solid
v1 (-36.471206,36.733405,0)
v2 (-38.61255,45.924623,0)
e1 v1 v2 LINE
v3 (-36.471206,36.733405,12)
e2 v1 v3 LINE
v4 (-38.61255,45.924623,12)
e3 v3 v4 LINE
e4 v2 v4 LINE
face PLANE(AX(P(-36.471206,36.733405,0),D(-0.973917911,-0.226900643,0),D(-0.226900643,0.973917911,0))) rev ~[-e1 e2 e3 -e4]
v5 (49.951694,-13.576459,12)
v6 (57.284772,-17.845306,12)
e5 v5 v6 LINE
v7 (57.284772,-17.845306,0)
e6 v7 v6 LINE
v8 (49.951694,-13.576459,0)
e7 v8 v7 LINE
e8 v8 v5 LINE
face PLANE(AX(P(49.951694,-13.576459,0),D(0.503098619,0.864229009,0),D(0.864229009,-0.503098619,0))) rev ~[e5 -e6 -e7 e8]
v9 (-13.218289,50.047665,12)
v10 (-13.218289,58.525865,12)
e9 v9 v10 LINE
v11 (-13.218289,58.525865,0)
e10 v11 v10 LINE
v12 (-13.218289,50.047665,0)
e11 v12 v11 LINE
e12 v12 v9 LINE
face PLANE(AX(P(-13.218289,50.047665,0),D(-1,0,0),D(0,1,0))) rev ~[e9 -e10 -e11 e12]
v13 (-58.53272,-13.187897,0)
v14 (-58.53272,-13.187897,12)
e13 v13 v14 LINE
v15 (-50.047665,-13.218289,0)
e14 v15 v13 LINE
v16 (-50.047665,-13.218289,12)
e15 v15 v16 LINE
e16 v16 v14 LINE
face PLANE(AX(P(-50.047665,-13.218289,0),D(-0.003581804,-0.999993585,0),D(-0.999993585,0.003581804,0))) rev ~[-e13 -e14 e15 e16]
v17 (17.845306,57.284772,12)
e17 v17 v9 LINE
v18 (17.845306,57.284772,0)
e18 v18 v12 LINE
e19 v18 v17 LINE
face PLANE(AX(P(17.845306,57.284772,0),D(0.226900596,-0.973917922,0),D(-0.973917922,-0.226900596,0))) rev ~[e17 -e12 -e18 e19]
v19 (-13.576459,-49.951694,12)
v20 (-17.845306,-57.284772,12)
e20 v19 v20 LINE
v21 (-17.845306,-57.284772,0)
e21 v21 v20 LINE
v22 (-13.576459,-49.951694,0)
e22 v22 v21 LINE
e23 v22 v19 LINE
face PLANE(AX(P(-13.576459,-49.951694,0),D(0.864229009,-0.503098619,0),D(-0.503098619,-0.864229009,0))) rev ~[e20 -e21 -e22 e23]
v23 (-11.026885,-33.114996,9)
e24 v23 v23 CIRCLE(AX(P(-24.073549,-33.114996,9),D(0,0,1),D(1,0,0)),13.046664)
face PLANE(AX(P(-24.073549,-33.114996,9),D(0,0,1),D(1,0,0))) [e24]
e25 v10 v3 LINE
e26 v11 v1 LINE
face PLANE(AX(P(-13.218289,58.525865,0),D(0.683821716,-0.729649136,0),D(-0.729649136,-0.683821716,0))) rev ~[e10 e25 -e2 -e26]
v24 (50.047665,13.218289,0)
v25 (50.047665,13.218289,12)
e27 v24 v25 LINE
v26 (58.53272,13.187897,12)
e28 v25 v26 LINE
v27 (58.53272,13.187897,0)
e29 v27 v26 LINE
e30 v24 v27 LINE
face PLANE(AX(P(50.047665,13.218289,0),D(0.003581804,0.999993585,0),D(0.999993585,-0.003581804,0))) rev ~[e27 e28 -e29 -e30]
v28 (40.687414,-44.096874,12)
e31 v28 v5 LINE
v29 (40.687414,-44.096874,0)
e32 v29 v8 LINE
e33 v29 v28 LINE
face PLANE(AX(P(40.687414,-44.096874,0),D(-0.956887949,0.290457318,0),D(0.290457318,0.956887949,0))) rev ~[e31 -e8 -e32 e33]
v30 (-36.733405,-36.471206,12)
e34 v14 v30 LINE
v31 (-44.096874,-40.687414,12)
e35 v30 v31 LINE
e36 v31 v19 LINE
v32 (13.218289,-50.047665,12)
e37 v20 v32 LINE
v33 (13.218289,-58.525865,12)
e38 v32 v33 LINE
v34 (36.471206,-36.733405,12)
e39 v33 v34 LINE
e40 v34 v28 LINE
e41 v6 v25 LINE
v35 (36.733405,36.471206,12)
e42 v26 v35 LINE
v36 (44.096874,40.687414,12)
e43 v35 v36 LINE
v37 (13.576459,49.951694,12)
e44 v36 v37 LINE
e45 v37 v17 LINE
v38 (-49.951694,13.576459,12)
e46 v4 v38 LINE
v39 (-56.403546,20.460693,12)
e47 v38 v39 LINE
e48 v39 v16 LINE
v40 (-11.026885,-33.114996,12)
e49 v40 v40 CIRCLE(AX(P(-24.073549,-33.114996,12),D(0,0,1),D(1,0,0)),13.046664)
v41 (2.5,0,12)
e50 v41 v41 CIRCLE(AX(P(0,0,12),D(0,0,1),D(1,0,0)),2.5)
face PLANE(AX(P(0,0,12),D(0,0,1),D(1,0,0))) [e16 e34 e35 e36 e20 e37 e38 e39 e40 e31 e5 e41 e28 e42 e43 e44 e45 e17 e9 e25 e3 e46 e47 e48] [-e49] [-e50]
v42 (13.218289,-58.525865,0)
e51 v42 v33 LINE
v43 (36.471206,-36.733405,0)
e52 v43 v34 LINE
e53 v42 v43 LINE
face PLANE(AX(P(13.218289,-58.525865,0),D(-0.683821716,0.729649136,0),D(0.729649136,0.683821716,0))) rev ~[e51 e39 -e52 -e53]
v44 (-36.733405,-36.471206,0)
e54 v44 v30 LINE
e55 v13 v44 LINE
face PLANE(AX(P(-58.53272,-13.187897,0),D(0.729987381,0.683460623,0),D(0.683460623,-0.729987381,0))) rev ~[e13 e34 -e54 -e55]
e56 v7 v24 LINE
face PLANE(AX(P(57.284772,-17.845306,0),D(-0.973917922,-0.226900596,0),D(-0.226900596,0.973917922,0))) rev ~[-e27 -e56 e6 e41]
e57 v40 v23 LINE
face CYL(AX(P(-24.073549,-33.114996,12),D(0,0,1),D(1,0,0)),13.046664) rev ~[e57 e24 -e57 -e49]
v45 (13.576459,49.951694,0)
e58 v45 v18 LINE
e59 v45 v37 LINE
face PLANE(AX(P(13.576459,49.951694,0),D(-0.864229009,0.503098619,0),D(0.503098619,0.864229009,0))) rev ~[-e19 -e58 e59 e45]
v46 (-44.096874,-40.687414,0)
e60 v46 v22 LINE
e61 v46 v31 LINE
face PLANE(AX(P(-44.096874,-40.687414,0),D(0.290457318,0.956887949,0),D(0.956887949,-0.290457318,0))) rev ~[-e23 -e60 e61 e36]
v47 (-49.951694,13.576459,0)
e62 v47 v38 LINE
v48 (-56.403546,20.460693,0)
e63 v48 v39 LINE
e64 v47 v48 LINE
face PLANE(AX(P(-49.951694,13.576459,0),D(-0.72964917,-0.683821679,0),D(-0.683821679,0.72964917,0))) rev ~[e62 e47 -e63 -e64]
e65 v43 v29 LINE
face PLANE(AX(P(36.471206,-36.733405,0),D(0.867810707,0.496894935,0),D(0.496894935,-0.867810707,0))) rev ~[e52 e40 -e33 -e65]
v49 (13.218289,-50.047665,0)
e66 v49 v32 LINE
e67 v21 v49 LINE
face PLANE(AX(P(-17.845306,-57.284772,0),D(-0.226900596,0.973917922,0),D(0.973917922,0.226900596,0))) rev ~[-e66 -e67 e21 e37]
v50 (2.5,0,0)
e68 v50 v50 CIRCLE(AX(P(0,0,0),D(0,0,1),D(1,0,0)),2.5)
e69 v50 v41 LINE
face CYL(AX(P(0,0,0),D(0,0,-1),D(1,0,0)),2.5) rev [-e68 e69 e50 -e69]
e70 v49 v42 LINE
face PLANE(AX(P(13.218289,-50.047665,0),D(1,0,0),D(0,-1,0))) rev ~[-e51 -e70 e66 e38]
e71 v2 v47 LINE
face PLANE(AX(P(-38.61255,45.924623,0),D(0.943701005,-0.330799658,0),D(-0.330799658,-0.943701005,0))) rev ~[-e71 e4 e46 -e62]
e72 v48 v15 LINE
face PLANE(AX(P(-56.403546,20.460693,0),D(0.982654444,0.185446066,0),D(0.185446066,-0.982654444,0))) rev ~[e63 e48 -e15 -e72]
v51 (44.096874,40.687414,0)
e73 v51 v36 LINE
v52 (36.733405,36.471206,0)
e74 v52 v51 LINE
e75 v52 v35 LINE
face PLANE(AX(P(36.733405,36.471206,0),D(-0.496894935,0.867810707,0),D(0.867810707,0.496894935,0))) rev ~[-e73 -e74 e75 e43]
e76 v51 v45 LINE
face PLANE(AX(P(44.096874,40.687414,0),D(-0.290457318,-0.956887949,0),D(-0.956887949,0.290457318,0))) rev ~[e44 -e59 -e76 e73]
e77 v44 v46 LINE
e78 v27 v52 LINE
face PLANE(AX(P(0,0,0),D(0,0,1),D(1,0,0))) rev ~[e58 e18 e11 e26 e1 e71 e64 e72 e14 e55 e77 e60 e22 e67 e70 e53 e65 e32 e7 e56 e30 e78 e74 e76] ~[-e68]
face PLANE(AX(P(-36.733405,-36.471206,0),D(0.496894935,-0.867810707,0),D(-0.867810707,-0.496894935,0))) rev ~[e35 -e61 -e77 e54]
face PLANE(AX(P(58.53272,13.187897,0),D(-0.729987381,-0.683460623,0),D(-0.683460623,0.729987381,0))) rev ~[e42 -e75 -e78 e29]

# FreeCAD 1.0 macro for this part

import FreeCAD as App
import Part
import Sketcher
from FreeCAD import Vector
Q = App.Units.Quantity


def add_polygon(sketch, points):
    """Adds a closed chain of lines whose ends are joined by coincident constraints."""
    first, n = sketch.GeometryCount, len(points)
    for a, b in zip(points, points[1:] + points[:1]):
        sketch.addGeometry(Part.LineSegment(App.Vector(*a, 0), App.Vector(*b, 0)), False)
    for i in range(n):
        sketch.addConstraint(Sketcher.Constraint("Coincident", first + i, 2, first + (i + 1) % n, 1))

doc = App.newDocument("Part")
body = doc.addObject("PartDesign::Body", "Body")

sketch1 = body.newObject("Sketcher::SketchObject", "Sketch")
sketch1.AttachmentSupport = (doc.getObject("XY_Plane"), [""])
sketch1.MapMode = "FlatFace"
add_polygon(sketch1, [(50.047665, 13.218289), (58.53272, 13.187897), (36.733405, 36.471206), (44.096874, 40.687414), (13.576459, 49.951694), (17.845306, 57.284772), (-13.218289, 50.047665), (-13.218289, 58.525865), (-36.471206, 36.733405), (-38.61255, 45.924623), (-49.951694, 13.576459), (-56.403546, 20.460693), (-50.047665, -13.218289), (-58.53272, -13.187897), (-36.733405, -36.471206), (-44.096874, -40.687414), (-13.576459, -49.951694), (-17.845306, -57.284772), (13.218289, -50.047665), (13.218289, -58.525865), (36.471206, -36.733405), (40.687414, -44.096874), (49.951694, -13.576459), (57.284772, -17.845306)])
sketch1.addGeometry(Part.Circle(Vector(0, 0, 0), Vector(0, 0, 1), 2.5), False)
sketch1.addConstraint([
    Sketcher.Constraint("Vertical", 6),
    Sketcher.Constraint("Vertical", 18),
    Sketcher.Constraint("Coincident", 24, 3, -1, 1),
    Sketcher.Constraint("Symmetric", 0, 2, 12, 2, -1, 1),
    Sketcher.Constraint("Symmetric", 1, 2, 13, 2, -1, 1),
    Sketcher.Constraint("Symmetric", 2, 2, 14, 2, -1, 1),
    Sketcher.Constraint("Symmetric", 3, 2, 15, 2, -1, 1),
    Sketcher.Constraint("Symmetric", 4, 2, 16, 2, -1, 1),
    Sketcher.Constraint("Symmetric", 5, 2, 17, 2, -1, 1),
    Sketcher.Constraint("Symmetric", 7, 2, 19, 2, -1, 1),
    Sketcher.Constraint("Symmetric", 9, 2, 21, 2, -1, 1),
    Sketcher.Constraint("Symmetric", 11, 2, 23, 2, -1, 1),
    Sketcher.Constraint("Perpendicular", 5, 8),
    Sketcher.Constraint("Perpendicular", 7, 10),
    Sketcher.Constraint("Perpendicular", 10, 19),
    Sketcher.Constraint("Perpendicular", 14, 20),
    Sketcher.Constraint("Perpendicular", 15, 21),
    Sketcher.Constraint("Perpendicular", 16, 22),
    Sketcher.Constraint("Perpendicular", 17, 23),
    Sketcher.Constraint("Equal", 0, 2),
    Sketcher.Constraint("Equal", 1, 3),
    Sketcher.Constraint("Equal", 2, 4),
    Sketcher.Constraint("Equal", 3, 5),
    Sketcher.Constraint("Equal", 16, 20),
    Sketcher.Constraint("Equal", 17, 21),
    Sketcher.Constraint("Equal", 20, 22),
    Sketcher.Constraint("Equal", 21, 23),
    Sketcher.Constraint("Diameter", 24, Q("5 mm")),
    Sketcher.Constraint("DistanceY", 6, 1, 6, 2, Q("8.4782 mm")),
    Sketcher.Constraint("DistanceX", 4, 2, 1, 2, Q("18.888099 mm")),
    Sketcher.Constraint("DistanceY", 12, 2, 7, 2, Q("49.921302 mm")),
    Sketcher.Constraint("DistanceY", 13, 2, 10, 2, Q("56.931899 mm")),
    Sketcher.Constraint("Distance", 0, Q("8.485109 mm")),
    Sketcher.Constraint("Distance", 7, Q("31.868628 mm")),
    Sketcher.Constraint("Distance", 9, Q("34.27798 mm")),
    Sketcher.Constraint("Distance", 10, Q("9.434992 mm")),
    Sketcher.Constraint("DistanceX", -1, 1, 0, 2, Q("58.53272 mm")),
    Sketcher.Constraint("DistanceX", -1, 1, 3, 2, Q("13.576459 mm")),
    Sketcher.Constraint("DistanceY", -1, 1, 4, 2, Q("57.284772 mm")),
    Sketcher.Constraint("DistanceX", 5, 2, -1, 1, Q("13.218289 mm")),
    Sketcher.Constraint("DistanceX", 8, 2, -1, 1, Q("38.61255 mm")),
])
pad1 = body.newObject("PartDesign::Pad", "Pad")
pad1.Profile = sketch1
pad1.Length = 12

sketch2 = body.newObject("Sketcher::SketchObject", "Sketch001")
sketch2.AttachmentSupport = (doc.getObject("XY_Plane"), [""])
sketch2.MapMode = "FlatFace"
sketch2.AttachmentOffset = App.Placement(Vector(0, 0, 12), App.Rotation())
sketch2.addGeometry(Part.Circle(Vector(-24.073549, -33.114996, 0), Vector(0, 0, 1), 13.046664), False)
sketch2.addConstraint([
    Sketcher.Constraint("Diameter", 0, Q("26.093328 mm")),
    Sketcher.Constraint("DistanceX", 0, 3, -1, 1, Q("24.073549 mm")),
    Sketcher.Constraint("DistanceY", 0, 3, -1, 1, Q("33.114996 mm")),
])
pocket1 = body.newObject("PartDesign::Pocket", "Pocket")
pocket1.Profile = sketch2
pocket1.Length = 3

doc.recompute()
